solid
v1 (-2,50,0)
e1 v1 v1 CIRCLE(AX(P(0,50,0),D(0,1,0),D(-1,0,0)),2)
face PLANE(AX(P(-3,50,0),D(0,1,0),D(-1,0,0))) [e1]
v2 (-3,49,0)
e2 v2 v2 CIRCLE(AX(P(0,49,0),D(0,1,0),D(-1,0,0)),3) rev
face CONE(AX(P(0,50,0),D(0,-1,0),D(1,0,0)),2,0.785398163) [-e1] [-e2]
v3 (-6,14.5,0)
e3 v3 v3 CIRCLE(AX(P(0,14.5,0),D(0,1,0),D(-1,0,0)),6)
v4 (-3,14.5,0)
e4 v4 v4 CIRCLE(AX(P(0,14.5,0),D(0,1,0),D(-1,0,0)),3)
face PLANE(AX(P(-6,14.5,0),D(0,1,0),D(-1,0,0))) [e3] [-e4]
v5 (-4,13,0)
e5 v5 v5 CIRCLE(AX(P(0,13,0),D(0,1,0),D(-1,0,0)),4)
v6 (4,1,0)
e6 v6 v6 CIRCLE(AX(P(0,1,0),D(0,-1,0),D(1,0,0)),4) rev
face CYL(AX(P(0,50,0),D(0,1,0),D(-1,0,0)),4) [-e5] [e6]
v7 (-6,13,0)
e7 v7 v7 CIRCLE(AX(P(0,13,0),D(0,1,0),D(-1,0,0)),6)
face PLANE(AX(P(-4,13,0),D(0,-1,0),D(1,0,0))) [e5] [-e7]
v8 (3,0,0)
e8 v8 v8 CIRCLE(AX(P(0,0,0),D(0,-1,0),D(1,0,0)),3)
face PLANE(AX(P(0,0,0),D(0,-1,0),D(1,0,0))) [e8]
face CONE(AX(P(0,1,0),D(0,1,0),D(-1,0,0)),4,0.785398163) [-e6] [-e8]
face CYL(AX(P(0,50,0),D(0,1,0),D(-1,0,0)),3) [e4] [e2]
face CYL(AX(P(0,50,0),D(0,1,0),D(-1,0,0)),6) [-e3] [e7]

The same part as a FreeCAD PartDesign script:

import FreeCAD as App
import Part
import Sketcher

V = App.Vector


def edges_at(feature, points):
    """Names of the edges that pass closest to the given points."""
    edges = feature.Shape.Edges
    near = lambda p: min(range(len(edges)), key=lambda i: edges[i].distToShape(Part.Vertex(*p))[0])
    return sorted({f"Edge{near(p) + 1}" for p in points})


def add_polygon(sketch, points):
    """Adds a closed chain of lines whose ends are joined by coincident constraints."""
    first, n = sketch.GeometryCount, len(points)
    for a, b in zip(points, points[1:] + points[:1]):
        sketch.addGeometry(Part.LineSegment(App.Vector(*a, 0), App.Vector(*b, 0)), False)
    for i in range(n):
        sketch.addConstraint(Sketcher.Constraint("Coincident", first + i, 2, first + (i + 1) % n, 1))

doc = App.newDocument("Part")
body = doc.addObject("PartDesign::Body", "Body")

sketch1 = doc.addObject("Sketcher::SketchObject", "Sketch")
body.addObject(sketch1)
sketch1.AttachmentSupport = (doc.XY_Plane, [""])
sketch1.MapMode = "FlatFace"
add_polygon(sketch1, [(-4, 0), (0, 0), (0, 50), (-3, 50), (-3, 14.5), (-6, 14.5), (-6, 13), (-4, 13)])
sketch1.addConstraint([
    Sketcher.Constraint("Horizontal", 0),
    Sketcher.Constraint("Vertical", 1),
    Sketcher.Constraint("Horizontal", 2),
    Sketcher.Constraint("Vertical", 3),
    Sketcher.Constraint("Horizontal", 4),
    Sketcher.Constraint("Vertical", 5),
    Sketcher.Constraint("Horizontal", 6),
    Sketcher.Constraint("Vertical", 7),
    Sketcher.Constraint("Coincident", 0, 2, -1, 1),
    Sketcher.Constraint("Equal", 2, 4),
    Sketcher.Constraint("DistanceX", 0, 1, 0, 2, 4.0),
    Sketcher.Constraint("DistanceX", 2, 2, 2, 1, 3.0),
    Sketcher.Constraint("DistanceY", 1, 1, 1, 2, 50.0),
    Sketcher.Constraint("DistanceY", 7, 2, 7, 1, 13.0),
    Sketcher.Constraint("DistanceY", 3, 2, 3, 1, 35.5),
])
revolution = doc.addObject("PartDesign::Revolution", "Revolution")
body.addObject(revolution)
revolution.Profile = sketch1
revolution.ReferenceAxis = (sketch1, ["V_Axis"])
revolution.Angle = 360
doc.recompute()

chamfer = doc.addObject("PartDesign::Chamfer", "Chamfer")
body.addObject(chamfer)
chamfer.Base = (revolution, edges_at(revolution, [(4, 0, 0)]))
chamfer.Size = 1
doc.recompute()

chamfer2 = doc.addObject("PartDesign::Chamfer", "Chamfer001")
body.addObject(chamfer2)
chamfer2.Base = (chamfer, edges_at(chamfer, [(3, 50, 0)]))
chamfer2.Size = 1

doc.recompute()
